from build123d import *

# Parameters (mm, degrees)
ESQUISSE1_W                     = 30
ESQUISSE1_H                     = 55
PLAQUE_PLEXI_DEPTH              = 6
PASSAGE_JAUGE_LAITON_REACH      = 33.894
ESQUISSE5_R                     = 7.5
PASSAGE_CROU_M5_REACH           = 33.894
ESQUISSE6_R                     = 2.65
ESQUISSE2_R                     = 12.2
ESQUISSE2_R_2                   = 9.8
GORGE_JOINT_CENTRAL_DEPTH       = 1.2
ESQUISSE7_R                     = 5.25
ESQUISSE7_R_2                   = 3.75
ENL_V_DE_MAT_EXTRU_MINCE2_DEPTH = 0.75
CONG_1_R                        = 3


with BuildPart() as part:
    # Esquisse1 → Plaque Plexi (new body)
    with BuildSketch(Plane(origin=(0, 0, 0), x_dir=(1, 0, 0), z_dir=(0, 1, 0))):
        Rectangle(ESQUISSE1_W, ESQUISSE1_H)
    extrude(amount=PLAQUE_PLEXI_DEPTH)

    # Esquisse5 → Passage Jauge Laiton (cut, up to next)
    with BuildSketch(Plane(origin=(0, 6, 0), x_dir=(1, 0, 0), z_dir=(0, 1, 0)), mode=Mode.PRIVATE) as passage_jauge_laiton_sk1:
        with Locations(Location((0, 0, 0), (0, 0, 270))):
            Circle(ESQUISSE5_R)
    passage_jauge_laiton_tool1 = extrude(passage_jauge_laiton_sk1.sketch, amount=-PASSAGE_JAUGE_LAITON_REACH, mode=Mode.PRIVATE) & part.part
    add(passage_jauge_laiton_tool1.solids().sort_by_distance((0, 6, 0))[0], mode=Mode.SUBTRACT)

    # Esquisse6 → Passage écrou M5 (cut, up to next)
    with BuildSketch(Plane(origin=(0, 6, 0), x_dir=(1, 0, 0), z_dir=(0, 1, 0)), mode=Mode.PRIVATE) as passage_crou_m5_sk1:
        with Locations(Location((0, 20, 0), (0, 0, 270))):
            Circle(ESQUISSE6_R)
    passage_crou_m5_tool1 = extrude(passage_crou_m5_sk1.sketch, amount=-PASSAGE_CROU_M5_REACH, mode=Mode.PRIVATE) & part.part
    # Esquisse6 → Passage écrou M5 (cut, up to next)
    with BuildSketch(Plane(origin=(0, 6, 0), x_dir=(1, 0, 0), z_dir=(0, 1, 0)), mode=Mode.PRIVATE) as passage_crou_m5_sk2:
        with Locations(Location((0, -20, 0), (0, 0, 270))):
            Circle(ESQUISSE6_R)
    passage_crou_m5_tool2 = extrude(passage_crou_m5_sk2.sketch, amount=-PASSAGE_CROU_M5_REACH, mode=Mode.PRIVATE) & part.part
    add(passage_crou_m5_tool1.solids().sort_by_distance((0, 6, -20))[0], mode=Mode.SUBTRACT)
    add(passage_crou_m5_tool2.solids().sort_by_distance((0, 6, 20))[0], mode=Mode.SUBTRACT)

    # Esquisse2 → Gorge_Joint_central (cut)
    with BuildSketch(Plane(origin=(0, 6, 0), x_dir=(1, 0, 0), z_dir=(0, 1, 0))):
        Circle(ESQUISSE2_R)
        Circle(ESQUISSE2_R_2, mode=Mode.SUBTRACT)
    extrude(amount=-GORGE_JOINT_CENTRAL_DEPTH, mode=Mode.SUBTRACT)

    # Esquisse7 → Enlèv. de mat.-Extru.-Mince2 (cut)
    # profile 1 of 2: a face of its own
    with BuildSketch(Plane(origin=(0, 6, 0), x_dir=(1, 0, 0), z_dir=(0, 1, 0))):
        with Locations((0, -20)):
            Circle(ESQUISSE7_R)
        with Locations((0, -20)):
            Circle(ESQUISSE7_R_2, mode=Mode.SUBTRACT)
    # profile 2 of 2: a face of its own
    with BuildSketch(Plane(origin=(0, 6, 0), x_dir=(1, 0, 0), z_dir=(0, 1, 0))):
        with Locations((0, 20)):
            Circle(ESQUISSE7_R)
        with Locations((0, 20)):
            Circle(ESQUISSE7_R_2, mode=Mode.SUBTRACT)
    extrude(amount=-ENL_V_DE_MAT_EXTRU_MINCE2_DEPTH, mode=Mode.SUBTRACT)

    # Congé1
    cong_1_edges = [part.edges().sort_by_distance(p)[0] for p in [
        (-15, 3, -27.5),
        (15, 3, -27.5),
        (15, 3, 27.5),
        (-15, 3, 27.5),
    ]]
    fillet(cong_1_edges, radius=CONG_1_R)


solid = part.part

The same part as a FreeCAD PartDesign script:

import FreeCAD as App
import Part
import Sketcher
Q = App.Units.Quantity


def edges_at(feature, points):
    """Names of the edges that pass closest to the given points."""
    edges = feature.Shape.Edges
    near = lambda p: min(range(len(edges)), key=lambda i: edges[i].distToShape(Part.Vertex(*p))[0])
    return sorted({f"Edge{near(p) + 1}" for p in points})


def add_polygon(sketch, points):
    """Adds a closed chain of lines whose ends are joined by coincident constraints."""
    first, n = sketch.GeometryCount, len(points)
    for a, b in zip(points, points[1:] + points[:1]):
        sketch.addGeometry(Part.LineSegment(App.Vector(*a, 0), App.Vector(*b, 0)), False)
    for i in range(n):
        sketch.addConstraint(Sketcher.Constraint("Coincident", first + i, 2, first + (i + 1) % n, 1))

doc = App.newDocument("Part")
body = doc.addObject("PartDesign::Body", "Body")

# Sketch on XZ plane
sketch1 = doc.addObject("Sketcher::SketchObject", "Sketch")
body.addObject(sketch1)
sketch1.AttachmentSupport = (doc.XZ_Plane, [""])
sketch1.MapMode = "FlatFace"
add_polygon(sketch1, [(-15, -28), (-15, 28), (15, 28), (15, -28)])  # lines 0-3
sketch1.addConstraint([
    Sketcher.Constraint("Vertical", 0),
    Sketcher.Constraint("Horizontal", 1),
    Sketcher.Constraint("Vertical", 2),
    Sketcher.Constraint("Horizontal", 3),
    Sketcher.Constraint("Symmetric", 0, 2, 2, 2, -1, 1),
    Sketcher.Constraint("DistanceX", 1, 1, 1, 2, Q("30 mm")),
    Sketcher.Constraint("DistanceY", 0, 1, 0, 2, Q("55 mm")),
])
pad1 = doc.addObject("PartDesign::Pad", "Pad")
body.addObject(pad1)
pad1.Profile = sketch1
pad1.Length = 6
pad1.Reversed = True

# Sketch on XZ plane
sketch2 = doc.addObject("Sketcher::SketchObject", "Sketch001")
body.addObject(sketch2)
sketch2.AttachmentSupport = (doc.XZ_Plane, [""])
sketch2.MapMode = "FlatFace"
sketch2.AttachmentOffset = App.Placement(App.Vector(0, 0, -6), App.Rotation())
sketch2.addGeometry(Part.Circle(App.Vector(0, 0, 0), App.Vector(0, 0, 1), 8), False)
sketch2.addConstraint([
    Sketcher.Constraint("Coincident", 0, 3, -1, 1),
    Sketcher.Constraint("Diameter", 0, Q("15 mm")),
])
pocket1 = doc.addObject("PartDesign::Pocket", "Pocket")
body.addObject(pocket1)
pocket1.Profile = sketch2
pocket1.Type = "UpToFirst"
pocket1.Reversed = True

# Sketch on XZ plane
sketch3 = doc.addObject("Sketcher::SketchObject", "Sketch002")
body.addObject(sketch3)
sketch3.AttachmentSupport = (doc.XZ_Plane, [""])
sketch3.MapMode = "FlatFace"
sketch3.AttachmentOffset = App.Placement(App.Vector(0, 0, -6), App.Rotation())
sketch3.addGeometry(Part.Circle(App.Vector(0, -20, 0), App.Vector(0, 0, 1), 2.6), False)
sketch3.addConstraint([
    Sketcher.Constraint("PointOnObject", 0, 3, -2),
    Sketcher.Constraint("Diameter", 0, Q("5.3 mm")),
    Sketcher.Constraint("DistanceY", 0, 3, -1, 1, Q("20 mm")),
])
pocket2 = doc.addObject("PartDesign::Pocket", "Pocket001")
body.addObject(pocket2)
pocket2.Profile = sketch3
pocket2.Type = "UpToFirst"
pocket2.Reversed = True

# Sketch on XZ plane
sketch4 = doc.addObject("Sketcher::SketchObject", "Sketch003")
body.addObject(sketch4)
sketch4.AttachmentSupport = (doc.XZ_Plane, [""])
sketch4.MapMode = "FlatFace"
sketch4.AttachmentOffset = App.Placement(App.Vector(0, 0, -6), App.Rotation())
sketch4.addGeometry(Part.Circle(App.Vector(0, 20, 0), App.Vector(0, 0, 1), 2.6), False)
sketch4.addConstraint([
    Sketcher.Constraint("PointOnObject", 0, 3, -2),
    Sketcher.Constraint("Diameter", 0, Q("5.3 mm")),
    Sketcher.Constraint("DistanceY", -1, 1, 0, 3, Q("20 mm")),
])
pocket3 = doc.addObject("PartDesign::Pocket", "Pocket002")
body.addObject(pocket3)
pocket3.Profile = sketch4
pocket3.Type = "UpToFirst"
pocket3.Reversed = True

# Sketch on XZ plane
sketch5 = doc.addObject("Sketcher::SketchObject", "Sketch004")
body.addObject(sketch5)
sketch5.AttachmentSupport = (doc.XZ_Plane, [""])
sketch5.MapMode = "FlatFace"
sketch5.AttachmentOffset = App.Placement(App.Vector(0, 0, -6), App.Rotation())
sketch5.addGeometry([
    Part.Circle(App.Vector(0, 0, 0), App.Vector(0, 0, 1), 12),
    Part.Circle(App.Vector(0, 0, 0), App.Vector(0, 0, 1), 10),
], False)
sketch5.addConstraint([
    Sketcher.Constraint("Coincident", 0, 3, -1, 1),
    Sketcher.Constraint("Coincident", 1, 3, -1, 1),
    Sketcher.Constraint("Diameter", 0, Q("24.4 mm")),
    Sketcher.Constraint("Diameter", 1, Q("19.6 mm")),
])
pocket4 = doc.addObject("PartDesign::Pocket", "Pocket003")
body.addObject(pocket4)
pocket4.Profile = sketch5
pocket4.Length = 1.2
pocket4.Reversed = True

# Sketch on XZ plane
sketch6 = doc.addObject("Sketcher::SketchObject", "Sketch005")
body.addObject(sketch6)
sketch6.AttachmentSupport = (doc.XZ_Plane, [""])
sketch6.MapMode = "FlatFace"
sketch6.AttachmentOffset = App.Placement(App.Vector(0, 0, -6), App.Rotation())
sketch6.addGeometry([
    Part.Circle(App.Vector(0, 20, 0), App.Vector(0, 0, 1), 5.2),
    Part.Circle(App.Vector(0, 20, 0), App.Vector(0, 0, 1), 3.8),
    Part.Circle(App.Vector(0, -20, 0), App.Vector(0, 0, 1), 5.2),
    Part.Circle(App.Vector(0, -20, 0), App.Vector(0, 0, 1), 3.8),
], False)
sketch6.addConstraint([
    Sketcher.Constraint("Coincident", 1, 3, 0, 3),
    Sketcher.Constraint("Coincident", 3, 3, 2, 3),
    Sketcher.Constraint("Equal", 0, 2),
    Sketcher.Constraint("Equal", 1, 3),
    Sketcher.Constraint("Symmetric", 0, 3, 2, 3, -1, 1),
    Sketcher.Constraint("PointOnObject", 0, 3, -2),
    Sketcher.Constraint("Diameter", 0, Q("10.5 mm")),
    Sketcher.Constraint("Diameter", 1, Q("7.5 mm")),
    Sketcher.Constraint("DistanceY", -1, 1, 0, 3, Q("20 mm")),
])
pocket5 = doc.addObject("PartDesign::Pocket", "Pocket004")
body.addObject(pocket5)
pocket5.Profile = sketch6
pocket5.Length = 0.75
pocket5.Reversed = True
doc.recompute()

fillet = doc.addObject("PartDesign::Fillet", "Fillet")
body.addObject(fillet)
fillet.Base = (pocket5, edges_at(pocket5, [
    (-15, 3, -27.5),
    (15, 3, -27.5),
    (15, 3, 27.5),
    (-15, 3, 27.5),
]))
fillet.Radius = 3

doc.recompute()
